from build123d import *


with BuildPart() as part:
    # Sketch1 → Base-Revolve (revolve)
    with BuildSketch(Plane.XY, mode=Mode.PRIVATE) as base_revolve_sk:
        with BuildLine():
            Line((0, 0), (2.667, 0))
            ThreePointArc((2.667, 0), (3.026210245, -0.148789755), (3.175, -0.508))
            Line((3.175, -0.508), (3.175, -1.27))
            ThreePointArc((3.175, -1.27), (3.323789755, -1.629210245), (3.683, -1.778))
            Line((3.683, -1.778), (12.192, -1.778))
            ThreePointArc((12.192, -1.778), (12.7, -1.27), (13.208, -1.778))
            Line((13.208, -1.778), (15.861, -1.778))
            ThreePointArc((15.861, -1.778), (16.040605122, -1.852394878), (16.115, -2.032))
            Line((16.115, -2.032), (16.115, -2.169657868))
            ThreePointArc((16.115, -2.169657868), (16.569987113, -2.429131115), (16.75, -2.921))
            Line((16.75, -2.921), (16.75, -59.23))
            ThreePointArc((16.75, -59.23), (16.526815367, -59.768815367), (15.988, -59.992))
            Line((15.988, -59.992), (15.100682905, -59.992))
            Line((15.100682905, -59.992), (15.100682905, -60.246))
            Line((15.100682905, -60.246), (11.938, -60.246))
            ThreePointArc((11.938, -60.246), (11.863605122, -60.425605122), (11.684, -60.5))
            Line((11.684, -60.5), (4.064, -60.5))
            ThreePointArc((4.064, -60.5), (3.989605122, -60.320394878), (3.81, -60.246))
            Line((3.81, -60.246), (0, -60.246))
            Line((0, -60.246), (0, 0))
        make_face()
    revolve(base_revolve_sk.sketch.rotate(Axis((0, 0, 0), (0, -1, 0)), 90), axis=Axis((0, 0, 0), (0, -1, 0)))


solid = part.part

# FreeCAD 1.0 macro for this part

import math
import FreeCAD as App
import Part
import Sketcher

V = App.Vector
Q = App.Units.Quantity

doc = App.newDocument("Part")
body = doc.addObject("PartDesign::Body", "Body")

sketch1 = body.newObject("Sketcher::SketchObject", "Sketch")
sketch1.AttachmentSupport = (doc.getObject("XY_Plane"), [""])
sketch1.MapMode = "FlatFace"
sketch1.addGeometry(Part.LineSegment(V(2.67, 0, 0), V(0, 0, 0)), False)
sketch1.addGeometry(Part.LineSegment(V(0, 0, 0), V(0, -60.25, 0)), False)
sketch1.addGeometry(Part.LineSegment(V(0, -60.25, 0), V(3.81, -60.25, 0)), False)
sketch1.addGeometry(Part.ArcOfCircle(Part.Circle(V(3.81, -60.5, 0), V(0, 0, 1), 0.25), math.radians(0), math.radians(90)), False)
sketch1.addGeometry(Part.LineSegment(V(4.06, -60.5, 0), V(11.68, -60.5, 0)), False)
sketch1.addGeometry(Part.ArcOfCircle(Part.Circle(V(11.68, -60.25, 0), V(0, 0, 1), 0.25), math.radians(-90), math.radians(0)), False)
sketch1.addGeometry(Part.LineSegment(V(11.94, -60.25, 0), V(15.1, -60.25, 0)), False)
sketch1.addGeometry(Part.LineSegment(V(15.1, -60.25, 0), V(15.1, -59.99, 0)), False)
sketch1.addGeometry(Part.LineSegment(V(15.1, -59.99, 0), V(15.99, -59.99, 0)), False)
sketch1.addGeometry(Part.ArcOfCircle(Part.Circle(V(15.99, -59.23, 0), V(0, 0, 1), 0.76), math.radians(-90), math.radians(0)), False)
sketch1.addGeometry(Part.LineSegment(V(16.75, -59.23, 0), V(16.75, -2.92, 0)), False)
sketch1.addGeometry(Part.ArcOfCircle(Part.Circle(V(15.99, -2.92, 0), V(0, 0, 1), 0.76), math.radians(0), math.radians(80)), False)
sketch1.addGeometry(Part.LineSegment(V(16.11, -2.17, 0), V(16.11, -2.03, 0)), False)
sketch1.addGeometry(Part.ArcOfCircle(Part.Circle(V(15.86, -2.03, 0), V(0, 0, 1), 0.25), math.radians(0), math.radians(90)), False)
sketch1.addGeometry(Part.LineSegment(V(15.86, -1.78, 0), V(13.21, -1.78, 0)), False)
sketch1.addGeometry(Part.ArcOfCircle(Part.Circle(V(12.7, -1.78, 0), V(0, 0, 1), 0.51), math.radians(0), math.radians(180)), False)
sketch1.addGeometry(Part.LineSegment(V(12.19, -1.78, 0), V(3.68, -1.78, 0)), False)
sketch1.addGeometry(Part.ArcOfCircle(Part.Circle(V(3.68, -1.27, 0), V(0, 0, 1), 0.51), math.radians(180), math.radians(270)), False)
sketch1.addGeometry(Part.LineSegment(V(3.17, -1.27, 0), V(3.17, -0.51, 0)), False)
sketch1.addGeometry(Part.ArcOfCircle(Part.Circle(V(2.67, -0.51, 0), V(0, 0, 1), 0.51), math.radians(0), math.radians(90)), False)
sketch1.addConstraint(Sketcher.Constraint("Coincident", 0, 2, 1, 1))
sketch1.addConstraint(Sketcher.Constraint("Coincident", 1, 2, 2, 1))
sketch1.addConstraint(Sketcher.Constraint("Tangent", 2, 2, 3, 2))
sketch1.addConstraint(Sketcher.Constraint("Coincident", 3, 1, 4, 1))
sketch1.addConstraint(Sketcher.Constraint("Tangent", 4, 2, 5, 1))
sketch1.addConstraint(Sketcher.Constraint("Coincident", 5, 2, 6, 1))
sketch1.addConstraint(Sketcher.Constraint("Coincident", 6, 2, 7, 1))
sketch1.addConstraint(Sketcher.Constraint("Coincident", 7, 2, 8, 1))
sketch1.addConstraint(Sketcher.Constraint("Tangent", 8, 2, 9, 1))
sketch1.addConstraint(Sketcher.Constraint("Tangent", 9, 2, 10, 1))
sketch1.addConstraint(Sketcher.Constraint("Tangent", 10, 2, 11, 1))
sketch1.addConstraint(Sketcher.Constraint("Coincident", 11, 2, 12, 1))
sketch1.addConstraint(Sketcher.Constraint("Tangent", 12, 2, 13, 1))
sketch1.addConstraint(Sketcher.Constraint("Tangent", 13, 2, 14, 1))
sketch1.addConstraint(Sketcher.Constraint("Coincident", 14, 2, 15, 1))
sketch1.addConstraint(Sketcher.Constraint("Coincident", 15, 2, 16, 1))
sketch1.addConstraint(Sketcher.Constraint("Tangent", 16, 2, 17, 2))
sketch1.addConstraint(Sketcher.Constraint("Tangent", 17, 1, 18, 1))
sketch1.addConstraint(Sketcher.Constraint("Tangent", 18, 2, 19, 1))
sketch1.addConstraint(Sketcher.Constraint("Tangent", 19, 2, 0, 1))
sketch1.addConstraint(Sketcher.Constraint("Horizontal", 0))
sketch1.addConstraint(Sketcher.Constraint("Vertical", 1))
sketch1.addConstraint(Sketcher.Constraint("Horizontal", 2))
sketch1.addConstraint(Sketcher.Constraint("Horizontal", 4))
sketch1.addConstraint(Sketcher.Constraint("Horizontal", 6))
sketch1.addConstraint(Sketcher.Constraint("Vertical", 7))
sketch1.addConstraint(Sketcher.Constraint("Horizontal", 8))
sketch1.addConstraint(Sketcher.Constraint("Vertical", 10))
sketch1.addConstraint(Sketcher.Constraint("Vertical", 12))
sketch1.addConstraint(Sketcher.Constraint("Horizontal", 14))
sketch1.addConstraint(Sketcher.Constraint("Horizontal", 16))
sketch1.addConstraint(Sketcher.Constraint("Vertical", 18))
sketch1.addConstraint(Sketcher.Constraint("Coincident", 0, 2, -1, 1))
sketch1.addConstraint(Sketcher.Constraint("Equal", 3, 5))
sketch1.addConstraint(Sketcher.Constraint("Equal", 9, 11))
sketch1.addConstraint(Sketcher.Constraint("Equal", 5, 13))
sketch1.addConstraint(Sketcher.Constraint("Equal", 15, 17))
sketch1.addConstraint(Sketcher.Constraint("Equal", 17, 19))
sketch1.addConstraint(Sketcher.Constraint("Horizontal", 5, 3, 1, 2))
sketch1.addConstraint(Sketcher.Constraint("Horizontal", 2, 2, 5, 2))
sketch1.addConstraint(Sketcher.Constraint("Horizontal", 15, 3, 13, 2))
sketch1.addConstraint(Sketcher.Constraint("Horizontal", 14, 2, 15, 2))
sketch1.addConstraint(Sketcher.Constraint("Radius", 3, Q("0.01 in")))
sketch1.addConstraint(Sketcher.Constraint("Radius", 9, Q("0.03 in")))
sketch1.addConstraint(Sketcher.Constraint("Radius", 15, Q("0.02 in")))
sketch1.addConstraint(Sketcher.Constraint("DistanceX", 4, 1, 4, 2, Q("0.3 in")))
sketch1.addConstraint(Sketcher.Constraint("DistanceX", 2, 1, 2, 2, Q("0.15 in")))
sketch1.addConstraint(Sketcher.Constraint("DistanceY", 7, 1, 7, 2, Q("0.01 in")))
sketch1.addConstraint(Sketcher.Constraint("DistanceY", 18, 1, 18, 2, Q("0.03 in")))
sketch1.addConstraint(Sketcher.Constraint("DistanceX", -1, 1, 15, 3, Q("0.5 in")))
sketch1.addConstraint(Sketcher.Constraint("DistanceX", 0, 2, 0, 1, Q("0.105 in")))
sketch1.addConstraint(Sketcher.Constraint("DistanceY", 11, 3, -1, 1, Q("0.115 in")))
sketch1.addConstraint(Sketcher.Constraint("DistanceX", 13, 3, 11, 3, Q("0.005 in")))
sketch1.addConstraint(Sketcher.Constraint("DistanceX", 14, 2, 14, 1, 2.653))
sketch1.addConstraint(Sketcher.Constraint("DistanceY", 1, 2, 1, 1, 60.246))
sketch1.addConstraint(Sketcher.Constraint("DistanceX", 6, 1, 6, 2, 3.162683))
revolution = body.newObject("PartDesign::Revolution", "Revolution")
revolution.Profile = sketch1
revolution.ReferenceAxis = (sketch1, ["V_Axis"])
revolution.Angle = 360

doc.recompute()
